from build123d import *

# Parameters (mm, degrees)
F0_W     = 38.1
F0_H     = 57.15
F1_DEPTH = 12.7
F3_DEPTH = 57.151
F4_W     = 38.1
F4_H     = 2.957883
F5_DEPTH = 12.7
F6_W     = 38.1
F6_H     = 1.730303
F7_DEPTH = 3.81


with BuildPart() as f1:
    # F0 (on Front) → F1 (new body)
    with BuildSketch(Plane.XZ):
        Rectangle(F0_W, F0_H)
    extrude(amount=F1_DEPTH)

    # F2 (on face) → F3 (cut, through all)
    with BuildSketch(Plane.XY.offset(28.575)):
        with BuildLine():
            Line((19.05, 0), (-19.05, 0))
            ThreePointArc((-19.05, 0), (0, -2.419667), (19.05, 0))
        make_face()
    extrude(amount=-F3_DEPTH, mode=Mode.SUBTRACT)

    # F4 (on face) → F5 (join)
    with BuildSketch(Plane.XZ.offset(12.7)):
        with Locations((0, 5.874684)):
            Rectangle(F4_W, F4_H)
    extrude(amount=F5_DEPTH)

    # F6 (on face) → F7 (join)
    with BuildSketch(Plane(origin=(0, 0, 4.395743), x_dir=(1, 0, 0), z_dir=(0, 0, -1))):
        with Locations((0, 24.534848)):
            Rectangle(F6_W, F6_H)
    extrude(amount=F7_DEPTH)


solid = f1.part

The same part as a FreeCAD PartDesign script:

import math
import FreeCAD as App
import Part
import Sketcher
Q = App.Units.Quantity

doc = App.newDocument("Part")
body = doc.addObject("PartDesign::Body", "Body")

# Sketch on XZ plane
sketch1 = doc.addObject("Sketcher::SketchObject", "Sketch")
body.addObject(sketch1)
sketch1.AttachmentSupport = (doc.XZ_Plane, [""])
sketch1.MapMode = "FlatFace"
sketch1.addGeometry(Part.LineSegment(App.Vector(-19, 29, 0), App.Vector(-19, -29, 0)), False)
sketch1.addGeometry(Part.LineSegment(App.Vector(-19, -29, 0), App.Vector(19, -29, 0)), False)
sketch1.addGeometry(Part.LineSegment(App.Vector(19, -29, 0), App.Vector(19, 29, 0)), False)
sketch1.addGeometry(Part.LineSegment(App.Vector(19, 29, 0), App.Vector(-19, 29, 0)), False)
sketch1.addConstraint(Sketcher.Constraint("Coincident", 0, 2, 1, 1))
sketch1.addConstraint(Sketcher.Constraint("Coincident", 1, 2, 2, 1))
sketch1.addConstraint(Sketcher.Constraint("Coincident", 2, 2, 3, 1))
sketch1.addConstraint(Sketcher.Constraint("Coincident", 3, 2, 0, 1))
sketch1.addConstraint(Sketcher.Constraint("Vertical", 0))
sketch1.addConstraint(Sketcher.Constraint("Horizontal", 1))
sketch1.addConstraint(Sketcher.Constraint("Vertical", 2))
sketch1.addConstraint(Sketcher.Constraint("Horizontal", 3))
sketch1.addConstraint(Sketcher.Constraint("Symmetric", 0, 2, 2, 2, -1, 1))
sketch1.addConstraint(Sketcher.Constraint("DistanceX", 1, 1, 1, 2, Q("1.5 in")))
sketch1.addConstraint(Sketcher.Constraint("DistanceY", 0, 2, 0, 1, Q("2.25 in")))
pad1 = doc.addObject("PartDesign::Pad", "Pad")
body.addObject(pad1)
pad1.Profile = sketch1
pad1.Length = Q("0.5 in")

# Sketch on XY plane
sketch2 = doc.addObject("Sketcher::SketchObject", "Sketch001")
body.addObject(sketch2)
sketch2.AttachmentSupport = (doc.XY_Plane, [""])
sketch2.MapMode = "FlatFace"
sketch2.AttachmentOffset = App.Placement(App.Vector(0, 0, 1.125 * 25.4), App.Rotation())
sketch2.addGeometry(Part.LineSegment(App.Vector(19, 0, 0), App.Vector(-19, 0, 0)), False)
sketch2.addGeometry(Part.ArcOfCircle(Part.Circle(App.Vector(0, 74, 0), App.Vector(0, 0, 1), 76), math.radians(-104), math.radians(-76)), False)
sketch2.addConstraint(Sketcher.Constraint("Coincident", 0, 1, 1, 2))
sketch2.addConstraint(Sketcher.Constraint("Coincident", 1, 1, 0, 2))
sketch2.addConstraint(Sketcher.Constraint("Horizontal", 0))
sketch2.addConstraint(Sketcher.Constraint("Symmetric", 0, 1, 1, 1, -1, 1))
sketch2.addConstraint(Sketcher.Constraint("DistanceX", 0, 2, 0, 1, Q("1.5 in")))
sketch2.addConstraint(Sketcher.Constraint("Radius", 1, 76.200008))
pocket1 = doc.addObject("PartDesign::Pocket", "Pocket")
body.addObject(pocket1)
pocket1.Profile = sketch2
pocket1.Type = "ThroughAll"

# Sketch on XZ plane
sketch3 = doc.addObject("Sketcher::SketchObject", "Sketch002")
body.addObject(sketch3)
sketch3.AttachmentSupport = (doc.XZ_Plane, [""])
sketch3.MapMode = "FlatFace"
sketch3.AttachmentOffset = App.Placement(App.Vector(0, 0, 0.5 * 25.4), App.Rotation())
sketch3.addGeometry(Part.LineSegment(App.Vector(-19.1, 7.4, 0), App.Vector(-19.1, 4.4, 0)), False)
sketch3.addGeometry(Part.LineSegment(App.Vector(-19.1, 4.4, 0), App.Vector(19.1, 4.4, 0)), False)
sketch3.addGeometry(Part.LineSegment(App.Vector(19.1, 4.4, 0), App.Vector(19.1, 7.4, 0)), False)
sketch3.addGeometry(Part.LineSegment(App.Vector(19.1, 7.4, 0), App.Vector(-19.1, 7.4, 0)), False)
sketch3.addConstraint(Sketcher.Constraint("Coincident", 0, 2, 1, 1))
sketch3.addConstraint(Sketcher.Constraint("Coincident", 1, 2, 2, 1))
sketch3.addConstraint(Sketcher.Constraint("Coincident", 2, 2, 3, 1))
sketch3.addConstraint(Sketcher.Constraint("Coincident", 3, 2, 0, 1))
sketch3.addConstraint(Sketcher.Constraint("Vertical", 0))
sketch3.addConstraint(Sketcher.Constraint("Horizontal", 1))
sketch3.addConstraint(Sketcher.Constraint("Vertical", 2))
sketch3.addConstraint(Sketcher.Constraint("Horizontal", 3))
sketch3.addConstraint(Sketcher.Constraint("DistanceX", 1, 1, 1, 2, Q("1.5 in")))
sketch3.addConstraint(Sketcher.Constraint("DistanceX", 0, 2, -1, 1, Q("0.75 in")))
sketch3.addConstraint(Sketcher.Constraint("DistanceY", 0, 2, 0, 1, 2.957883))
sketch3.addConstraint(Sketcher.Constraint("DistanceY", -1, 1, 0, 2, 4.395742))
pad2 = doc.addObject("PartDesign::Pad", "Pad001")
body.addObject(pad2)
pad2.Profile = sketch3
pad2.Length = Q("0.5 in")

# Sketch on XY plane
sketch4 = doc.addObject("Sketcher::SketchObject", "Sketch003")
body.addObject(sketch4)
sketch4.AttachmentSupport = (doc.XY_Plane, [""])
sketch4.MapMode = "FlatFace"
sketch4.AttachmentOffset = App.Placement(App.Vector(0, 0, 4.395743), App.Rotation())
sketch4.addGeometry(Part.LineSegment(App.Vector(-19.1, -25.4, 0), App.Vector(-19.1, -23.7, 0)), False)
sketch4.addGeometry(Part.LineSegment(App.Vector(-19.1, -23.7, 0), App.Vector(19.1, -23.7, 0)), False)
sketch4.addGeometry(Part.LineSegment(App.Vector(19.1, -23.7, 0), App.Vector(19.1, -25.4, 0)), False)
sketch4.addGeometry(Part.LineSegment(App.Vector(19.1, -25.4, 0), App.Vector(-19.1, -25.4, 0)), False)
sketch4.addConstraint(Sketcher.Constraint("Coincident", 0, 2, 1, 1))
sketch4.addConstraint(Sketcher.Constraint("Coincident", 1, 2, 2, 1))
sketch4.addConstraint(Sketcher.Constraint("Coincident", 2, 2, 3, 1))
sketch4.addConstraint(Sketcher.Constraint("Coincident", 3, 2, 0, 1))
sketch4.addConstraint(Sketcher.Constraint("Vertical", 0))
sketch4.addConstraint(Sketcher.Constraint("Horizontal", 1))
sketch4.addConstraint(Sketcher.Constraint("Vertical", 2))
sketch4.addConstraint(Sketcher.Constraint("Horizontal", 3))
sketch4.addConstraint(Sketcher.Constraint("DistanceX", 1, 1, 1, 2, Q("1.5 in")))
sketch4.addConstraint(Sketcher.Constraint("DistanceY", 2, 2, -1, 1, Q("1 in")))
sketch4.addConstraint(Sketcher.Constraint("DistanceX", 0, 2, -1, 1, Q("0.75 in")))
sketch4.addConstraint(Sketcher.Constraint("DistanceY", 0, 1, 0, 2, 1.730303))
pad3 = doc.addObject("PartDesign::Pad", "Pad002")
body.addObject(pad3)
pad3.Profile = sketch4
pad3.Length = Q("0.15 in")
pad3.Reversed = True

doc.recompute()
